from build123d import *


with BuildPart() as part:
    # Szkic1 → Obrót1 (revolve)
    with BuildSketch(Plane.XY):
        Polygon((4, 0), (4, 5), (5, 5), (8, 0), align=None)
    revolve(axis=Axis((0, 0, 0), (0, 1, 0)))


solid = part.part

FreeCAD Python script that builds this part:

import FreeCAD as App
import Part
import Sketcher

V = App.Vector


def add_polygon(sketch, points):
    """Adds a closed chain of lines whose ends are joined by coincident constraints."""
    first, n = sketch.GeometryCount, len(points)
    for a, b in zip(points, points[1:] + points[:1]):
        sketch.addGeometry(Part.LineSegment(App.Vector(*a, 0), App.Vector(*b, 0)), False)
    for i in range(n):
        sketch.addConstraint(Sketcher.Constraint("Coincident", first + i, 2, first + (i + 1) % n, 1))

doc = App.newDocument("Part")
body = doc.addObject("PartDesign::Body", "Body")

sketch1 = body.newObject("Sketcher::SketchObject", "Sketch")
sketch1.AttachmentSupport = (doc.getObject("XY_Plane"), [""])
sketch1.MapMode = "FlatFace"
add_polygon(sketch1, [(4, 5), (4, 0), (8, 0), (5, 5)])
sketch1.addConstraint(Sketcher.Constraint("Vertical", 0))
sketch1.addConstraint(Sketcher.Constraint("Horizontal", 1))
sketch1.addConstraint(Sketcher.Constraint("Horizontal", 3))
sketch1.addConstraint(Sketcher.Constraint("PointOnObject", 0, 2, -1))
sketch1.addConstraint(Sketcher.Constraint("DistanceX", 1, 1, 1, 2, 4.0))
sketch1.addConstraint(Sketcher.Constraint("DistanceX", 3, 2, 3, 1, 1.0))
sketch1.addConstraint(Sketcher.Constraint("DistanceY", 0, 2, 0, 1, 5.0))
sketch1.addConstraint(Sketcher.Constraint("DistanceX", -1, 1, 0, 2, 4.0))
revolution = body.newObject("PartDesign::Revolution", "Revolution")
revolution.Profile = sketch1
revolution.ReferenceAxis = (sketch1, ["V_Axis"])
revolution.Angle = 360

doc.recompute()
